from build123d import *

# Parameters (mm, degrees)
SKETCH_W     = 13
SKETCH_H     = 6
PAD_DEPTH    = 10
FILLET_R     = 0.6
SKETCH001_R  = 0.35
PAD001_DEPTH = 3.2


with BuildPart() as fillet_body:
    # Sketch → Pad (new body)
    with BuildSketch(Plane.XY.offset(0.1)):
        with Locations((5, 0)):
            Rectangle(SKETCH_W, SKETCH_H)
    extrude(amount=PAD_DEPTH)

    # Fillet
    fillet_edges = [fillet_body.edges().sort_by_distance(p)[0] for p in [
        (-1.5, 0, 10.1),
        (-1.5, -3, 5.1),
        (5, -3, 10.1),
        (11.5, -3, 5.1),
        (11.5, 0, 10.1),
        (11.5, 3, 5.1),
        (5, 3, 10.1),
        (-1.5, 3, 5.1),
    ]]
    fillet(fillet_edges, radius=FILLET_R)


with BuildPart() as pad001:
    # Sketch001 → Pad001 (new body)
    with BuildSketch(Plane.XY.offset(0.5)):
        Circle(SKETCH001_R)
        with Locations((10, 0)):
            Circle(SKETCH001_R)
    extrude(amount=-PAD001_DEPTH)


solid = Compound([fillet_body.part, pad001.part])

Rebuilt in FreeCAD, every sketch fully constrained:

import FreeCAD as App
import Part
import Sketcher

V = App.Vector


def edges_at(feature, points):
    """Names of the edges that pass closest to the given points."""
    edges = feature.Shape.Edges
    near = lambda p: min(range(len(edges)), key=lambda i: edges[i].distToShape(Part.Vertex(*p))[0])
    return sorted({f"Edge{near(p) + 1}" for p in points})

doc = App.newDocument("Part")
params = doc.addObject("Spreadsheet::Sheet", "Params")
for row, (alias, value) in enumerate([
    ("sketch1_width", "13 mm"),
    ("sketch1_height", "6 mm"),
    ("pad1_length", "10 mm"),
    ("fillet_radius", "0.6 mm"),
    ("sketch2_diameter", "0.7 mm"),
    ("pad2_length", "3.2 mm"),
], start=1):
    params.set(f"A{row}", alias)
    params.set(f"B{row}", "=" + value)
    params.setAlias(f"B{row}", alias)

body = doc.addObject("PartDesign::Body", "Body")

# Sketch on XY plane
sketch1 = doc.addObject("Sketcher::SketchObject", "Sketch")
body.addObject(sketch1)
sketch1.AttachmentSupport = (doc.XY_Plane, [""])
sketch1.MapMode = "FlatFace"
sketch1.AttachmentOffset = App.Placement(V(0, 0, 0.1), App.Rotation())
sketch1.addGeometry(Part.LineSegment(V(-2, 3, 0), V(-2, -3, 0)), False)
sketch1.addGeometry(Part.LineSegment(V(-2, -3, 0), V(12, -3, 0)), False)
sketch1.addGeometry(Part.LineSegment(V(12, -3, 0), V(12, 3, 0)), False)
sketch1.addGeometry(Part.LineSegment(V(12, 3, 0), V(-2, 3, 0)), False)
sketch1.addConstraint(Sketcher.Constraint("Coincident", 0, 2, 1, 1))
sketch1.addConstraint(Sketcher.Constraint("Coincident", 1, 2, 2, 1))
sketch1.addConstraint(Sketcher.Constraint("Coincident", 2, 2, 3, 1))
sketch1.addConstraint(Sketcher.Constraint("Coincident", 3, 2, 0, 1))
sketch1.addConstraint(Sketcher.Constraint("Vertical", 0))
sketch1.addConstraint(Sketcher.Constraint("Horizontal", 1))
sketch1.addConstraint(Sketcher.Constraint("Vertical", 2))
sketch1.addConstraint(Sketcher.Constraint("Horizontal", 3))
sketch1.addConstraint(Sketcher.Constraint("DistanceX", 1, 1, 1, 2, 13.0))
sketch1.addConstraint(Sketcher.Constraint("DistanceY", 0, 2, 0, 1, 6.0))
sketch1.addConstraint(Sketcher.Constraint("DistanceY", 0, 2, -1, 1, 3.0))
sketch1.addConstraint(Sketcher.Constraint("DistanceX", 0, 2, -1, 1, 1.5))
sketch1.setExpression("Constraints[8]", "Params.sketch1_width")
sketch1.setExpression("Constraints[9]", "Params.sketch1_height")
pad1 = doc.addObject("PartDesign::Pad", "Pad")
body.addObject(pad1)
pad1.Profile = sketch1
pad1.setExpression("Length", "Params.pad1_length")
doc.recompute()

fillet = doc.addObject("PartDesign::Fillet", "Fillet")
body.addObject(fillet)
fillet.Base = (pad1, edges_at(pad1, [
    (-1.5, 0, 10.1),
    (-1.5, -3, 5.1),
    (5, -3, 10.1),
    (11.5, -3, 5.1),
    (11.5, 0, 10.1),
    (11.5, 3, 5.1),
    (5, 3, 10.1),
    (-1.5, 3, 5.1),
]))
fillet.setExpression("Radius", "Params.fillet_radius")
body2 = doc.addObject("PartDesign::Body", "Body001")
body2.AllowCompound = True

# Sketch on XY plane
sketch2 = doc.addObject("Sketcher::SketchObject", "Sketch001")
body2.addObject(sketch2)
sketch2.AttachmentSupport = (doc.getObject("XY_Plane001"), [""])
sketch2.MapMode = "FlatFace"
sketch2.AttachmentOffset = App.Placement(V(0, 0, 0.5), App.Rotation())
sketch2.addGeometry(Part.Circle(V(0, 0, 0), V(0, 0, 1), 0.35), False)
sketch2.addGeometry(Part.Circle(V(10, 0, 0), V(0, 0, 1), 0.35), False)
sketch2.addConstraint(Sketcher.Constraint("Coincident", 0, 3, -1, 1))
sketch2.addConstraint(Sketcher.Constraint("Equal", 0, 1))
sketch2.addConstraint(Sketcher.Constraint("PointOnObject", 1, 3, -1))
sketch2.addConstraint(Sketcher.Constraint("Diameter", 0, 0.7))
sketch2.addConstraint(Sketcher.Constraint("DistanceX", -1, 1, 1, 3, 10.0))
sketch2.setExpression("Constraints[3]", "Params.sketch2_diameter")
pad2 = doc.addObject("PartDesign::Pad", "Pad001")
body2.addObject(pad2)
pad2.Profile = sketch2
pad2.setExpression("Length", "Params.pad2_length")
pad2.Reversed = True

doc.recompute()
